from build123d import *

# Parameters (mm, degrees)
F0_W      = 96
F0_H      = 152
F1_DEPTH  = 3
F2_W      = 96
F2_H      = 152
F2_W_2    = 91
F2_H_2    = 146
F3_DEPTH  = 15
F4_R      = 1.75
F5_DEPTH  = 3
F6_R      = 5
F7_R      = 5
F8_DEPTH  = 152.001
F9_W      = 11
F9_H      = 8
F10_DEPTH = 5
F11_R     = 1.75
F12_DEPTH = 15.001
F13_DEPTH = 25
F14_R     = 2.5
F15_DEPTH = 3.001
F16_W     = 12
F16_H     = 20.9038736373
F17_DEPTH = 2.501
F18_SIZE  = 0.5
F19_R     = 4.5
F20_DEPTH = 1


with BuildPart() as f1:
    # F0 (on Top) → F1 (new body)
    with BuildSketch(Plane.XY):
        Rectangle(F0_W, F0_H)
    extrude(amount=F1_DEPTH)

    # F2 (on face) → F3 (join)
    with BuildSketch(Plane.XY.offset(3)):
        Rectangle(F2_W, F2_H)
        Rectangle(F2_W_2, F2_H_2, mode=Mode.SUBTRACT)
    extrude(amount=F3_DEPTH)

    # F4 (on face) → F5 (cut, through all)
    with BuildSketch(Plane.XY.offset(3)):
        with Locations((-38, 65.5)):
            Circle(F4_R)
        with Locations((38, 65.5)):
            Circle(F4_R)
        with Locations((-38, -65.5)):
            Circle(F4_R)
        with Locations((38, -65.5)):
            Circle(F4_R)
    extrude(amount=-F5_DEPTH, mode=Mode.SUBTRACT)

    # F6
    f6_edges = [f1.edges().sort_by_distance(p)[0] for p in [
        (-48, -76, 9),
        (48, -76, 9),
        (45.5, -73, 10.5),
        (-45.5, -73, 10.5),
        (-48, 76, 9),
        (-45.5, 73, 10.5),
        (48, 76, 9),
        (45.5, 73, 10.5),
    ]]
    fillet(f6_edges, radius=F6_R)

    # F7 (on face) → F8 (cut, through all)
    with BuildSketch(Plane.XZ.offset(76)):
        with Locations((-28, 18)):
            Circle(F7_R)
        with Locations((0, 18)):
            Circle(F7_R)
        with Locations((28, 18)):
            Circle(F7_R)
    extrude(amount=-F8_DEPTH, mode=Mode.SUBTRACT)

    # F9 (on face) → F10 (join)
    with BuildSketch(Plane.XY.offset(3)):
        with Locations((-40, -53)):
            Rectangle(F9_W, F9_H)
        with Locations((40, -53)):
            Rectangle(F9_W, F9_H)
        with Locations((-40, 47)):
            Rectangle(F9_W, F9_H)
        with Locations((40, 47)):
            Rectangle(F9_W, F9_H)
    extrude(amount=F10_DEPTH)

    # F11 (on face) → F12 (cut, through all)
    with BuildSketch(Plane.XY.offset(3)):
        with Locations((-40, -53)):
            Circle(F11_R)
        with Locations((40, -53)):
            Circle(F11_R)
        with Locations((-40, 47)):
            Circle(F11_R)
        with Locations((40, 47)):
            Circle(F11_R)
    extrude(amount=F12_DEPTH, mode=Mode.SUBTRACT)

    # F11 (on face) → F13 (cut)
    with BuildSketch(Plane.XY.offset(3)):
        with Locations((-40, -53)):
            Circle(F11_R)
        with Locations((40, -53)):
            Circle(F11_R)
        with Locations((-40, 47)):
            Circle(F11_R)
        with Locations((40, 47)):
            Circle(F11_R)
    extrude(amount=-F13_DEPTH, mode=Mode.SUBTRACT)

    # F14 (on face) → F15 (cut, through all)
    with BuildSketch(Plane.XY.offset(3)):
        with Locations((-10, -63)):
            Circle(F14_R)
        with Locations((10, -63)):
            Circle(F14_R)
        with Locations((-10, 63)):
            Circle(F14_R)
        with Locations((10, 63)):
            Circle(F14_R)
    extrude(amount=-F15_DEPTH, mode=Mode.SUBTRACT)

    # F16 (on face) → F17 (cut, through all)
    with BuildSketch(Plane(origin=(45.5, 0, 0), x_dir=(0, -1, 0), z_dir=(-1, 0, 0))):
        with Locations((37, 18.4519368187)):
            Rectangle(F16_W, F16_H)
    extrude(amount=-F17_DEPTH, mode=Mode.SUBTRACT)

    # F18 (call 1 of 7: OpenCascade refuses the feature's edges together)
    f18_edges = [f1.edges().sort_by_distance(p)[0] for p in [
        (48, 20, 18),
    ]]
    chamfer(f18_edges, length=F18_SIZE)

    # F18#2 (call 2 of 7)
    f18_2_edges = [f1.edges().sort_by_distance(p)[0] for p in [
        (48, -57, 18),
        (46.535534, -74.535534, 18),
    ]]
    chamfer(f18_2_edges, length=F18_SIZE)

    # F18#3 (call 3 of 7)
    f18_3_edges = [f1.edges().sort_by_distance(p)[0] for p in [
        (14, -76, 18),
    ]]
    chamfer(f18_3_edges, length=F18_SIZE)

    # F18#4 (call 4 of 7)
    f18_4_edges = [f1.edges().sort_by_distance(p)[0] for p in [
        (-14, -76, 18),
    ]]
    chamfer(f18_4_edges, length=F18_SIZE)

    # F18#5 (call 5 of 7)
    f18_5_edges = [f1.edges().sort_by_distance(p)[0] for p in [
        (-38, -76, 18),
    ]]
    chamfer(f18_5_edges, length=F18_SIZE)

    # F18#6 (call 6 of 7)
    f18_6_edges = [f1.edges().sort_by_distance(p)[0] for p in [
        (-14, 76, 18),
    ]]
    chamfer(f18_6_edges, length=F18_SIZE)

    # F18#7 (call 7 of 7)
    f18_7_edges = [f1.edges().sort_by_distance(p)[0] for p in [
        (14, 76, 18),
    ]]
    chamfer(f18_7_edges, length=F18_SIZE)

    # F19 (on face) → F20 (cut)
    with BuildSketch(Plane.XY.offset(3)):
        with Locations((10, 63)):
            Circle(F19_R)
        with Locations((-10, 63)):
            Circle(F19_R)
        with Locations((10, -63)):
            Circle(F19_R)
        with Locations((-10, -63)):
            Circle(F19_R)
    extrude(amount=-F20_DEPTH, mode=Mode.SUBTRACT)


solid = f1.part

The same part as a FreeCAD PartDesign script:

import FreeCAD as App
import Part
import Sketcher


def edges_at(feature, points):
    """Names of the edges that pass closest to the given points."""
    edges = feature.Shape.Edges
    near = lambda p: min(range(len(edges)), key=lambda i: edges[i].distToShape(Part.Vertex(*p))[0])
    return sorted({f"Edge{near(p) + 1}" for p in points})


def add_polygon(sketch, points):
    """Adds a closed chain of lines whose ends are joined by coincident constraints."""
    first, n = sketch.GeometryCount, len(points)
    for a, b in zip(points, points[1:] + points[:1]):
        sketch.addGeometry(Part.LineSegment(App.Vector(*a, 0), App.Vector(*b, 0)), False)
    for i in range(n):
        sketch.addConstraint(Sketcher.Constraint("Coincident", first + i, 2, first + (i + 1) % n, 1))

doc = App.newDocument("Part")
body = doc.addObject("PartDesign::Body", "Body")

sketch1 = doc.addObject("Sketcher::SketchObject", "Sketch")
body.addObject(sketch1)
sketch1.AttachmentSupport = (doc.XY_Plane, [""])
sketch1.MapMode = "FlatFace"
add_polygon(sketch1, [(-48, 76), (-48, -76), (48, -76), (48, 76)])
sketch1.addConstraint([
    Sketcher.Constraint("Vertical", 0),
    Sketcher.Constraint("Horizontal", 1),
    Sketcher.Constraint("Vertical", 2),
    Sketcher.Constraint("Horizontal", 3),
    Sketcher.Constraint("Symmetric", 0, 2, 2, 2, -1, 1),
    Sketcher.Constraint("DistanceX", 1, 1, 1, 2, 96.0),
    Sketcher.Constraint("DistanceY", 0, 2, 0, 1, 152.0),
])
pad1 = doc.addObject("PartDesign::Pad", "Pad")
body.addObject(pad1)
pad1.Profile = sketch1
pad1.Length = 3

sketch2 = doc.addObject("Sketcher::SketchObject", "Sketch001")
body.addObject(sketch2)
sketch2.AttachmentSupport = (doc.XY_Plane, [""])
sketch2.MapMode = "FlatFace"
sketch2.AttachmentOffset = App.Placement(App.Vector(0, 0, 3), App.Rotation())
add_polygon(sketch2, [(-48, 76), (-48, -76), (48, -76), (48, 76)])
add_polygon(sketch2, [(46, -73), (-46, -73), (-46, 73), (46, 73)])
sketch2.addConstraint([
    Sketcher.Constraint("Vertical", 0),
    Sketcher.Constraint("Horizontal", 1),
    Sketcher.Constraint("Vertical", 2),
    Sketcher.Constraint("Horizontal", 3),
    Sketcher.Constraint("Horizontal", 4),
    Sketcher.Constraint("Vertical", 5),
    Sketcher.Constraint("Horizontal", 6),
    Sketcher.Constraint("Vertical", 7),
    Sketcher.Constraint("Symmetric", 0, 2, 2, 2, -1, 1),
    Sketcher.Constraint("Symmetric", 4, 2, 6, 2, -1, 1),
    Sketcher.Constraint("DistanceX", 1, 1, 1, 2, 96.0),
    Sketcher.Constraint("DistanceX", 4, 2, 4, 1, 91.0),
    Sketcher.Constraint("DistanceY", 0, 2, 0, 1, 152.0),
    Sketcher.Constraint("DistanceY", 5, 1, 5, 2, 146.0),
])
pad2 = doc.addObject("PartDesign::Pad", "Pad001")
body.addObject(pad2)
pad2.Profile = sketch2
pad2.Length = 15

sketch3 = doc.addObject("Sketcher::SketchObject", "Sketch002")
body.addObject(sketch3)
sketch3.AttachmentSupport = (doc.XY_Plane, [""])
sketch3.MapMode = "FlatFace"
sketch3.AttachmentOffset = App.Placement(App.Vector(0, 0, 3), App.Rotation())
sketch3.addGeometry([
    Part.Circle(App.Vector(-38, 65.5, 0), App.Vector(0, 0, 1), 1.8),
    Part.Circle(App.Vector(38, 65.5, 0), App.Vector(0, 0, 1), 1.8),
    Part.Circle(App.Vector(-38, -65.5, 0), App.Vector(0, 0, 1), 1.8),
    Part.Circle(App.Vector(38, -65.5, 0), App.Vector(0, 0, 1), 1.8),
], False)
sketch3.addConstraint([
    Sketcher.Constraint("Equal", 0, 1),
    Sketcher.Constraint("Equal", 1, 2),
    Sketcher.Constraint("Equal", 2, 3),
    Sketcher.Constraint("Symmetric", 1, 3, 2, 3, -1, 1),
    Sketcher.Constraint("Symmetric", 0, 3, 3, 3, -1, 1),
    Sketcher.Constraint("Symmetric", 0, 3, 1, 3, -2),
    Sketcher.Constraint("Diameter", 0, 3.5),
    Sketcher.Constraint("DistanceX", 0, 3, -1, 1, 38.0),
    Sketcher.Constraint("DistanceY", 2, 3, 0, 3, 131.0),
])
pocket1 = doc.addObject("PartDesign::Pocket", "Pocket")
body.addObject(pocket1)
pocket1.Profile = sketch3
pocket1.Type = "ThroughAll"
doc.recompute()

fillet = doc.addObject("PartDesign::Fillet", "Fillet")
body.addObject(fillet)
fillet.Base = (pocket1, edges_at(pocket1, [
    (-48, -76, 9),
    (48, -76, 9),
    (45.5, -73, 10.5),
    (-45.5, -73, 10.5),
    (-48, 76, 9),
    (-45.5, 73, 10.5),
    (48, 76, 9),
    (45.5, 73, 10.5),
]))
fillet.Radius = 5

sketch4 = doc.addObject("Sketcher::SketchObject", "Sketch003")
body.addObject(sketch4)
sketch4.AttachmentSupport = (doc.XZ_Plane, [""])
sketch4.MapMode = "FlatFace"
sketch4.AttachmentOffset = App.Placement(App.Vector(0, 0, 76), App.Rotation())
sketch4.addGeometry([
    Part.Circle(App.Vector(-28, 18, 0), App.Vector(0, 0, 1), 5),
    Part.Circle(App.Vector(0, 18, 0), App.Vector(0, 0, 1), 5),
    Part.Circle(App.Vector(28, 18, 0), App.Vector(0, 0, 1), 5),
], False)
sketch4.addConstraint([
    Sketcher.Constraint("Equal", 0, 1),
    Sketcher.Constraint("Equal", 1, 2),
    Sketcher.Constraint("Symmetric", 0, 3, 2, 3, -2),
    Sketcher.Constraint("PointOnObject", 1, 3, -2),
    Sketcher.Constraint("Horizontal", 0, 3, 1, 3),
    Sketcher.Constraint("Diameter", 0, 10.0),
    Sketcher.Constraint("DistanceX", 0, 3, -1, 1, 28.0),
    Sketcher.Constraint("DistanceY", -1, 1, 0, 3, 18.0),
])
pocket2 = doc.addObject("PartDesign::Pocket", "Pocket001")
body.addObject(pocket2)
pocket2.Profile = sketch4
pocket2.Type = "ThroughAll"

sketch5 = doc.addObject("Sketcher::SketchObject", "Sketch004")
body.addObject(sketch5)
sketch5.AttachmentSupport = (doc.XY_Plane, [""])
sketch5.MapMode = "FlatFace"
sketch5.AttachmentOffset = App.Placement(App.Vector(0, 0, 3), App.Rotation())
add_polygon(sketch5, [(-46, -49), (-46, -57), (-34, -57), (-34, -49)])
add_polygon(sketch5, [(34, -49), (34, -57), (46, -57), (46, -49)])
add_polygon(sketch5, [(-46, 51), (-46, 43), (-34, 43), (-34, 51)])
add_polygon(sketch5, [(34, 51), (34, 43), (46, 43), (46, 51)])
sketch5.addConstraint([
    Sketcher.Constraint("Vertical", 0),
    Sketcher.Constraint("Horizontal", 1),
    Sketcher.Constraint("Vertical", 2),
    Sketcher.Constraint("Horizontal", 3),
    Sketcher.Constraint("Vertical", 4),
    Sketcher.Constraint("Horizontal", 5),
    Sketcher.Constraint("Vertical", 6),
    Sketcher.Constraint("Horizontal", 7),
    Sketcher.Constraint("Vertical", 8),
    Sketcher.Constraint("Horizontal", 9),
    Sketcher.Constraint("Vertical", 10),
    Sketcher.Constraint("Horizontal", 11),
    Sketcher.Constraint("Vertical", 12),
    Sketcher.Constraint("Horizontal", 13),
    Sketcher.Constraint("Vertical", 14),
    Sketcher.Constraint("Horizontal", 15),
    Sketcher.Constraint("Symmetric", 1, 2, 4, 2, -2),
    Sketcher.Constraint("Symmetric", 3, 2, 6, 2, -2),
    Sketcher.Constraint("Symmetric", 9, 2, 12, 2, -2),
    Sketcher.Constraint("Symmetric", 11, 2, 14, 2, -2),
    Sketcher.Constraint("Vertical", 3, 2, 8, 2),
    Sketcher.Constraint("Vertical", 2, 2, 9, 2),
    Sketcher.Constraint("Equal", 6, 8),
    Sketcher.Constraint("DistanceX", 1, 1, 1, 2, 11.0),
    Sketcher.Constraint("DistanceY", 0, 2, 0, 1, 8.0),
    Sketcher.Constraint("DistanceY", 0, 2, -1, 1, 57.0),
    Sketcher.Constraint("DistanceY", -1, 1, 8, 2, 43.0),
    Sketcher.Constraint("DistanceX", 1, 2, 4, 2, 69.0),
])
pad3 = doc.addObject("PartDesign::Pad", "Pad002")
body.addObject(pad3)
pad3.Profile = sketch5
pad3.Length = 5

sketch6 = doc.addObject("Sketcher::SketchObject", "Sketch005")
body.addObject(sketch6)
sketch6.AttachmentSupport = (doc.XY_Plane, [""])
sketch6.MapMode = "FlatFace"
sketch6.AttachmentOffset = App.Placement(App.Vector(0, 0, 3), App.Rotation())
sketch6.addGeometry([
    Part.Circle(App.Vector(-40, -53, 0), App.Vector(0, 0, 1), 1.8),
    Part.Circle(App.Vector(40, -53, 0), App.Vector(0, 0, 1), 1.8),
    Part.Circle(App.Vector(-40, 47, 0), App.Vector(0, 0, 1), 1.8),
    Part.Circle(App.Vector(40, 47, 0), App.Vector(0, 0, 1), 1.8),
], False)
sketch6.addConstraint([
    Sketcher.Constraint("Equal", 0, 1),
    Sketcher.Constraint("Equal", 1, 2),
    Sketcher.Constraint("Equal", 2, 3),
    Sketcher.Constraint("Symmetric", 0, 3, 1, 3, -2),
    Sketcher.Constraint("Symmetric", 2, 3, 3, 3, -2),
    Sketcher.Constraint("Vertical", 0, 3, 2, 3),
    Sketcher.Constraint("Diameter", 0, 3.5),
    Sketcher.Constraint("DistanceX", 0, 3, -1, 1, 40.0),
    Sketcher.Constraint("DistanceY", 0, 3, -1, 1, 53.0),
    Sketcher.Constraint("DistanceY", -1, 1, 2, 3, 47.0),
])
pocket3 = doc.addObject("PartDesign::Pocket", "Pocket002")
body.addObject(pocket3)
pocket3.Profile = sketch6
pocket3.Type = "ThroughAll"
pocket3.Reversed = True

sketch7 = doc.addObject("Sketcher::SketchObject", "Sketch006")
body.addObject(sketch7)
sketch7.AttachmentSupport = (doc.XY_Plane, [""])
sketch7.MapMode = "FlatFace"
sketch7.AttachmentOffset = App.Placement(App.Vector(0, 0, 3), App.Rotation())
sketch7.addGeometry([
    Part.Circle(App.Vector(-40, -53, 0), App.Vector(0, 0, 1), 1.8),
    Part.Circle(App.Vector(40, -53, 0), App.Vector(0, 0, 1), 1.8),
    Part.Circle(App.Vector(-40, 47, 0), App.Vector(0, 0, 1), 1.8),
    Part.Circle(App.Vector(40, 47, 0), App.Vector(0, 0, 1), 1.8),
], False)
sketch7.addConstraint([
    Sketcher.Constraint("Equal", 0, 1),
    Sketcher.Constraint("Equal", 1, 2),
    Sketcher.Constraint("Equal", 2, 3),
    Sketcher.Constraint("Symmetric", 0, 3, 1, 3, -2),
    Sketcher.Constraint("Symmetric", 2, 3, 3, 3, -2),
    Sketcher.Constraint("Vertical", 0, 3, 2, 3),
    Sketcher.Constraint("Diameter", 0, 3.5),
    Sketcher.Constraint("DistanceX", 0, 3, -1, 1, 40.0),
    Sketcher.Constraint("DistanceY", 0, 3, -1, 1, 53.0),
    Sketcher.Constraint("DistanceY", -1, 1, 2, 3, 47.0),
])
pocket4 = doc.addObject("PartDesign::Pocket", "Pocket003")
body.addObject(pocket4)
pocket4.Profile = sketch7
pocket4.Length = 25

sketch8 = doc.addObject("Sketcher::SketchObject", "Sketch007")
body.addObject(sketch8)
sketch8.AttachmentSupport = (doc.XY_Plane, [""])
sketch8.MapMode = "FlatFace"
sketch8.AttachmentOffset = App.Placement(App.Vector(0, 0, 3), App.Rotation())
sketch8.addGeometry([
    Part.Circle(App.Vector(-10, -63, 0), App.Vector(0, 0, 1), 2.5),
    Part.Circle(App.Vector(10, -63, 0), App.Vector(0, 0, 1), 2.5),
    Part.Circle(App.Vector(-10, 63, 0), App.Vector(0, 0, 1), 2.5),
    Part.Circle(App.Vector(10, 63, 0), App.Vector(0, 0, 1), 2.5),
], False)
sketch8.addConstraint([
    Sketcher.Constraint("Equal", 0, 1),
    Sketcher.Constraint("Equal", 1, 2),
    Sketcher.Constraint("Equal", 2, 3),
    Sketcher.Constraint("Symmetric", 1, 3, 2, 3, -1, 1),
    Sketcher.Constraint("Symmetric", 0, 3, 3, 3, -1, 1),
    Sketcher.Constraint("Symmetric", 0, 3, 1, 3, -2),
    Sketcher.Constraint("Diameter", 0, 5.0),
    Sketcher.Constraint("DistanceX", 0, 3, -1, 1, 10.0),
    Sketcher.Constraint("DistanceY", 0, 3, -1, 1, 63.0),
])
pocket5 = doc.addObject("PartDesign::Pocket", "Pocket004")
body.addObject(pocket5)
pocket5.Profile = sketch8
pocket5.Type = "ThroughAll"

sketch9 = doc.addObject("Sketcher::SketchObject", "Sketch008")
body.addObject(sketch9)
sketch9.AttachmentSupport = (doc.YZ_Plane, [""])
sketch9.MapMode = "FlatFace"
sketch9.AttachmentOffset = App.Placement(App.Vector(0, 0, 45.5), App.Rotation())
add_polygon(sketch9, [(-31, 29), (-31, 8), (-43, 8), (-43, 29)])
sketch9.addConstraint([
    Sketcher.Constraint("Vertical", 0),
    Sketcher.Constraint("Horizontal", 1),
    Sketcher.Constraint("Vertical", 2),
    Sketcher.Constraint("Horizontal", 3),
    Sketcher.Constraint("DistanceX", 1, 2, 1, 1, 12.0),
    Sketcher.Constraint("DistanceX", 0, 2, -1, 1, 31.0),
    Sketcher.Constraint("DistanceY", -1, 1, 0, 2, 8.0),
    Sketcher.Constraint("DistanceY", 0, 2, 0, 1, 20.903874),
])
pocket6 = doc.addObject("PartDesign::Pocket", "Pocket005")
body.addObject(pocket6)
pocket6.Profile = sketch9
pocket6.Type = "ThroughAll"
pocket6.Reversed = True
doc.recompute()

chamfer = doc.addObject("PartDesign::Chamfer", "Chamfer")
body.addObject(chamfer)
chamfer.Base = (pocket6, edges_at(pocket6, [(48, 20, 18)]))
chamfer.Size = 0.5
doc.recompute()

chamfer2 = doc.addObject("PartDesign::Chamfer", "Chamfer001")
body.addObject(chamfer2)
chamfer2.Base = (chamfer, edges_at(chamfer, [(48, -57, 18), (46.536, -74.536, 18)]))
chamfer2.Size = 0.5
doc.recompute()

chamfer3 = doc.addObject("PartDesign::Chamfer", "Chamfer002")
body.addObject(chamfer3)
chamfer3.Base = (chamfer2, edges_at(chamfer2, [(14, -76, 18)]))
chamfer3.Size = 0.5
doc.recompute()

chamfer4 = doc.addObject("PartDesign::Chamfer", "Chamfer003")
body.addObject(chamfer4)
chamfer4.Base = (chamfer3, edges_at(chamfer3, [(-14, -76, 18)]))
chamfer4.Size = 0.5
doc.recompute()

chamfer5 = doc.addObject("PartDesign::Chamfer", "Chamfer004")
body.addObject(chamfer5)
chamfer5.Base = (chamfer4, edges_at(chamfer4, [(-38, -76, 18)]))
chamfer5.Size = 0.5
doc.recompute()

chamfer6 = doc.addObject("PartDesign::Chamfer", "Chamfer005")
body.addObject(chamfer6)
chamfer6.Base = (chamfer5, edges_at(chamfer5, [(-14, 76, 18)]))
chamfer6.Size = 0.5
doc.recompute()

chamfer7 = doc.addObject("PartDesign::Chamfer", "Chamfer006")
body.addObject(chamfer7)
chamfer7.Base = (chamfer6, edges_at(chamfer6, [(14, 76, 18)]))
chamfer7.Size = 0.5

sketch10 = doc.addObject("Sketcher::SketchObject", "Sketch009")
body.addObject(sketch10)
sketch10.AttachmentSupport = (doc.XY_Plane, [""])
sketch10.MapMode = "FlatFace"
sketch10.AttachmentOffset = App.Placement(App.Vector(0, 0, 3), App.Rotation())
sketch10.addGeometry([
    Part.Circle(App.Vector(10, 63, 0), App.Vector(0, 0, 1), 4.5),
    Part.Circle(App.Vector(-10, 63, 0), App.Vector(0, 0, 1), 4.5),
    Part.Circle(App.Vector(10, -63, 0), App.Vector(0, 0, 1), 4.5),
    Part.Circle(App.Vector(-10, -63, 0), App.Vector(0, 0, 1), 4.5),
], False)
sketch10.addConstraint([
    Sketcher.Constraint("Equal", 0, 1),
    Sketcher.Constraint("Equal", 1, 2),
    Sketcher.Constraint("Equal", 2, 3),
    Sketcher.Constraint("Symmetric", 1, 3, 2, 3, -1, 1),
    Sketcher.Constraint("Symmetric", 0, 3, 3, 3, -1, 1),
    Sketcher.Constraint("Symmetric", 0, 3, 1, 3, -2),
    Sketcher.Constraint("Diameter", 0, 9.0),
    Sketcher.Constraint("DistanceX", -1, 1, 0, 3, 10.0),
    Sketcher.Constraint("DistanceY", -1, 1, 0, 3, 63.0),
])
pocket7 = doc.addObject("PartDesign::Pocket", "Pocket006")
body.addObject(pocket7)
pocket7.Profile = sketch10
pocket7.Length = 1

doc.recompute()
